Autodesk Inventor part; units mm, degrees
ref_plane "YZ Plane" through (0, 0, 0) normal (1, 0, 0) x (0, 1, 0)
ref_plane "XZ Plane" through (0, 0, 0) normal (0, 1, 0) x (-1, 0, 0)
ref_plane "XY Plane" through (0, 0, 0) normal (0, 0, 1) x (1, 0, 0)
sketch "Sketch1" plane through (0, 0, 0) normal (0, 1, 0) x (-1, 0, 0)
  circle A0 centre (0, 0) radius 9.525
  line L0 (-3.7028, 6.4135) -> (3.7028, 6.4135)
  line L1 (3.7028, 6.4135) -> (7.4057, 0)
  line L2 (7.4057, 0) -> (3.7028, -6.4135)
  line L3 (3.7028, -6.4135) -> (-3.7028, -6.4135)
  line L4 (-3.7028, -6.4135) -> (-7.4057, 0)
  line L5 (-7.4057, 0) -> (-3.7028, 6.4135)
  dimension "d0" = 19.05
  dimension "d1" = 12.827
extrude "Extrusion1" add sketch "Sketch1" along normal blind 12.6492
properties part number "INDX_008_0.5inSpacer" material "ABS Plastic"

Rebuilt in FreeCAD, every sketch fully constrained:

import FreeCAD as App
import Part
import Sketcher
from FreeCAD import Vector
Q = App.Units.Quantity

doc = App.newDocument("Part")
params = doc.addObject("Spreadsheet::Sheet", "Params")
for row, (alias, value) in enumerate([
    ("sketch1_diameter", "0.75 in"),
    ("pad1_length", "0.498 in"),
], start=1):
    params.set(f"A{row}", alias)
    params.set(f"B{row}", "=" + value)
    params.setAlias(f"B{row}", alias)

body = doc.addObject("PartDesign::Body", "Body")

sketch1 = body.newObject("Sketcher::SketchObject", "Sketch")
sketch1.AttachmentSupport = (doc.getObject("XZ_Plane"), [""])
sketch1.MapMode = "FlatFace"
sketch1.addGeometry([
    Part.Circle(Vector(0, 0, 0), Vector(0, 0, 1), 9.525),
    Part.LineSegment(Vector(7.4057, 0, 0), Vector(3.7028, 6.4135, 0)),
    Part.LineSegment(Vector(3.7028, 6.4135, 0), Vector(-3.7028, 6.4135, 0)),
    Part.LineSegment(Vector(-3.7028, 6.4135, 0), Vector(-7.4057, 0, 0)),
    Part.LineSegment(Vector(-7.4057, 0, 0), Vector(-3.7028, -6.4135, 0)),
    Part.LineSegment(Vector(-3.7028, -6.4135, 0), Vector(3.7028, -6.4135, 0)),
    Part.LineSegment(Vector(3.7028, -6.4135, 0), Vector(7.4057, 0, 0)),
], False)
sketch1.addConstraint([
    Sketcher.Constraint("Coincident", 1, 2, 2, 1),
    Sketcher.Constraint("Coincident", 2, 2, 3, 1),
    Sketcher.Constraint("Coincident", 3, 2, 4, 1),
    Sketcher.Constraint("Coincident", 4, 2, 5, 1),
    Sketcher.Constraint("Coincident", 5, 2, 6, 1),
    Sketcher.Constraint("Coincident", 6, 2, 1, 1),
    Sketcher.Constraint("Horizontal", 2),
    Sketcher.Constraint("Horizontal", 5),
    Sketcher.Constraint("Coincident", 0, 3, -1, 1),
    Sketcher.Constraint("Symmetric", 1, 2, 4, 2, -1, 1),
    Sketcher.Constraint("Symmetric", 3, 2, 6, 2, -1, 1),
    Sketcher.Constraint("PointOnObject", 3, 2, -1),
    Sketcher.Constraint("Parallel", 3, 6),
    Sketcher.Constraint("Vertical", 2, 2, 4, 2),
    Sketcher.Constraint("Diameter", 0, Q("0.75 in")),
    Sketcher.Constraint("Angle", 1, Q("120.0004 deg")),
    Sketcher.Constraint("DistanceY", 4, 2, 2, 2, Q("0.505 in")),
    Sketcher.Constraint("DistanceX", 2, 2, 2, 1, Q("7.4056 mm")),
])
sketch1.setExpression("Constraints[14]", "Params.sketch1_diameter")
pad1 = body.newObject("PartDesign::Pad", "Pad")
pad1.Profile = sketch1
pad1.setExpression("Length", "Params.pad1_length")
pad1.Reversed = True

doc.recompute()
